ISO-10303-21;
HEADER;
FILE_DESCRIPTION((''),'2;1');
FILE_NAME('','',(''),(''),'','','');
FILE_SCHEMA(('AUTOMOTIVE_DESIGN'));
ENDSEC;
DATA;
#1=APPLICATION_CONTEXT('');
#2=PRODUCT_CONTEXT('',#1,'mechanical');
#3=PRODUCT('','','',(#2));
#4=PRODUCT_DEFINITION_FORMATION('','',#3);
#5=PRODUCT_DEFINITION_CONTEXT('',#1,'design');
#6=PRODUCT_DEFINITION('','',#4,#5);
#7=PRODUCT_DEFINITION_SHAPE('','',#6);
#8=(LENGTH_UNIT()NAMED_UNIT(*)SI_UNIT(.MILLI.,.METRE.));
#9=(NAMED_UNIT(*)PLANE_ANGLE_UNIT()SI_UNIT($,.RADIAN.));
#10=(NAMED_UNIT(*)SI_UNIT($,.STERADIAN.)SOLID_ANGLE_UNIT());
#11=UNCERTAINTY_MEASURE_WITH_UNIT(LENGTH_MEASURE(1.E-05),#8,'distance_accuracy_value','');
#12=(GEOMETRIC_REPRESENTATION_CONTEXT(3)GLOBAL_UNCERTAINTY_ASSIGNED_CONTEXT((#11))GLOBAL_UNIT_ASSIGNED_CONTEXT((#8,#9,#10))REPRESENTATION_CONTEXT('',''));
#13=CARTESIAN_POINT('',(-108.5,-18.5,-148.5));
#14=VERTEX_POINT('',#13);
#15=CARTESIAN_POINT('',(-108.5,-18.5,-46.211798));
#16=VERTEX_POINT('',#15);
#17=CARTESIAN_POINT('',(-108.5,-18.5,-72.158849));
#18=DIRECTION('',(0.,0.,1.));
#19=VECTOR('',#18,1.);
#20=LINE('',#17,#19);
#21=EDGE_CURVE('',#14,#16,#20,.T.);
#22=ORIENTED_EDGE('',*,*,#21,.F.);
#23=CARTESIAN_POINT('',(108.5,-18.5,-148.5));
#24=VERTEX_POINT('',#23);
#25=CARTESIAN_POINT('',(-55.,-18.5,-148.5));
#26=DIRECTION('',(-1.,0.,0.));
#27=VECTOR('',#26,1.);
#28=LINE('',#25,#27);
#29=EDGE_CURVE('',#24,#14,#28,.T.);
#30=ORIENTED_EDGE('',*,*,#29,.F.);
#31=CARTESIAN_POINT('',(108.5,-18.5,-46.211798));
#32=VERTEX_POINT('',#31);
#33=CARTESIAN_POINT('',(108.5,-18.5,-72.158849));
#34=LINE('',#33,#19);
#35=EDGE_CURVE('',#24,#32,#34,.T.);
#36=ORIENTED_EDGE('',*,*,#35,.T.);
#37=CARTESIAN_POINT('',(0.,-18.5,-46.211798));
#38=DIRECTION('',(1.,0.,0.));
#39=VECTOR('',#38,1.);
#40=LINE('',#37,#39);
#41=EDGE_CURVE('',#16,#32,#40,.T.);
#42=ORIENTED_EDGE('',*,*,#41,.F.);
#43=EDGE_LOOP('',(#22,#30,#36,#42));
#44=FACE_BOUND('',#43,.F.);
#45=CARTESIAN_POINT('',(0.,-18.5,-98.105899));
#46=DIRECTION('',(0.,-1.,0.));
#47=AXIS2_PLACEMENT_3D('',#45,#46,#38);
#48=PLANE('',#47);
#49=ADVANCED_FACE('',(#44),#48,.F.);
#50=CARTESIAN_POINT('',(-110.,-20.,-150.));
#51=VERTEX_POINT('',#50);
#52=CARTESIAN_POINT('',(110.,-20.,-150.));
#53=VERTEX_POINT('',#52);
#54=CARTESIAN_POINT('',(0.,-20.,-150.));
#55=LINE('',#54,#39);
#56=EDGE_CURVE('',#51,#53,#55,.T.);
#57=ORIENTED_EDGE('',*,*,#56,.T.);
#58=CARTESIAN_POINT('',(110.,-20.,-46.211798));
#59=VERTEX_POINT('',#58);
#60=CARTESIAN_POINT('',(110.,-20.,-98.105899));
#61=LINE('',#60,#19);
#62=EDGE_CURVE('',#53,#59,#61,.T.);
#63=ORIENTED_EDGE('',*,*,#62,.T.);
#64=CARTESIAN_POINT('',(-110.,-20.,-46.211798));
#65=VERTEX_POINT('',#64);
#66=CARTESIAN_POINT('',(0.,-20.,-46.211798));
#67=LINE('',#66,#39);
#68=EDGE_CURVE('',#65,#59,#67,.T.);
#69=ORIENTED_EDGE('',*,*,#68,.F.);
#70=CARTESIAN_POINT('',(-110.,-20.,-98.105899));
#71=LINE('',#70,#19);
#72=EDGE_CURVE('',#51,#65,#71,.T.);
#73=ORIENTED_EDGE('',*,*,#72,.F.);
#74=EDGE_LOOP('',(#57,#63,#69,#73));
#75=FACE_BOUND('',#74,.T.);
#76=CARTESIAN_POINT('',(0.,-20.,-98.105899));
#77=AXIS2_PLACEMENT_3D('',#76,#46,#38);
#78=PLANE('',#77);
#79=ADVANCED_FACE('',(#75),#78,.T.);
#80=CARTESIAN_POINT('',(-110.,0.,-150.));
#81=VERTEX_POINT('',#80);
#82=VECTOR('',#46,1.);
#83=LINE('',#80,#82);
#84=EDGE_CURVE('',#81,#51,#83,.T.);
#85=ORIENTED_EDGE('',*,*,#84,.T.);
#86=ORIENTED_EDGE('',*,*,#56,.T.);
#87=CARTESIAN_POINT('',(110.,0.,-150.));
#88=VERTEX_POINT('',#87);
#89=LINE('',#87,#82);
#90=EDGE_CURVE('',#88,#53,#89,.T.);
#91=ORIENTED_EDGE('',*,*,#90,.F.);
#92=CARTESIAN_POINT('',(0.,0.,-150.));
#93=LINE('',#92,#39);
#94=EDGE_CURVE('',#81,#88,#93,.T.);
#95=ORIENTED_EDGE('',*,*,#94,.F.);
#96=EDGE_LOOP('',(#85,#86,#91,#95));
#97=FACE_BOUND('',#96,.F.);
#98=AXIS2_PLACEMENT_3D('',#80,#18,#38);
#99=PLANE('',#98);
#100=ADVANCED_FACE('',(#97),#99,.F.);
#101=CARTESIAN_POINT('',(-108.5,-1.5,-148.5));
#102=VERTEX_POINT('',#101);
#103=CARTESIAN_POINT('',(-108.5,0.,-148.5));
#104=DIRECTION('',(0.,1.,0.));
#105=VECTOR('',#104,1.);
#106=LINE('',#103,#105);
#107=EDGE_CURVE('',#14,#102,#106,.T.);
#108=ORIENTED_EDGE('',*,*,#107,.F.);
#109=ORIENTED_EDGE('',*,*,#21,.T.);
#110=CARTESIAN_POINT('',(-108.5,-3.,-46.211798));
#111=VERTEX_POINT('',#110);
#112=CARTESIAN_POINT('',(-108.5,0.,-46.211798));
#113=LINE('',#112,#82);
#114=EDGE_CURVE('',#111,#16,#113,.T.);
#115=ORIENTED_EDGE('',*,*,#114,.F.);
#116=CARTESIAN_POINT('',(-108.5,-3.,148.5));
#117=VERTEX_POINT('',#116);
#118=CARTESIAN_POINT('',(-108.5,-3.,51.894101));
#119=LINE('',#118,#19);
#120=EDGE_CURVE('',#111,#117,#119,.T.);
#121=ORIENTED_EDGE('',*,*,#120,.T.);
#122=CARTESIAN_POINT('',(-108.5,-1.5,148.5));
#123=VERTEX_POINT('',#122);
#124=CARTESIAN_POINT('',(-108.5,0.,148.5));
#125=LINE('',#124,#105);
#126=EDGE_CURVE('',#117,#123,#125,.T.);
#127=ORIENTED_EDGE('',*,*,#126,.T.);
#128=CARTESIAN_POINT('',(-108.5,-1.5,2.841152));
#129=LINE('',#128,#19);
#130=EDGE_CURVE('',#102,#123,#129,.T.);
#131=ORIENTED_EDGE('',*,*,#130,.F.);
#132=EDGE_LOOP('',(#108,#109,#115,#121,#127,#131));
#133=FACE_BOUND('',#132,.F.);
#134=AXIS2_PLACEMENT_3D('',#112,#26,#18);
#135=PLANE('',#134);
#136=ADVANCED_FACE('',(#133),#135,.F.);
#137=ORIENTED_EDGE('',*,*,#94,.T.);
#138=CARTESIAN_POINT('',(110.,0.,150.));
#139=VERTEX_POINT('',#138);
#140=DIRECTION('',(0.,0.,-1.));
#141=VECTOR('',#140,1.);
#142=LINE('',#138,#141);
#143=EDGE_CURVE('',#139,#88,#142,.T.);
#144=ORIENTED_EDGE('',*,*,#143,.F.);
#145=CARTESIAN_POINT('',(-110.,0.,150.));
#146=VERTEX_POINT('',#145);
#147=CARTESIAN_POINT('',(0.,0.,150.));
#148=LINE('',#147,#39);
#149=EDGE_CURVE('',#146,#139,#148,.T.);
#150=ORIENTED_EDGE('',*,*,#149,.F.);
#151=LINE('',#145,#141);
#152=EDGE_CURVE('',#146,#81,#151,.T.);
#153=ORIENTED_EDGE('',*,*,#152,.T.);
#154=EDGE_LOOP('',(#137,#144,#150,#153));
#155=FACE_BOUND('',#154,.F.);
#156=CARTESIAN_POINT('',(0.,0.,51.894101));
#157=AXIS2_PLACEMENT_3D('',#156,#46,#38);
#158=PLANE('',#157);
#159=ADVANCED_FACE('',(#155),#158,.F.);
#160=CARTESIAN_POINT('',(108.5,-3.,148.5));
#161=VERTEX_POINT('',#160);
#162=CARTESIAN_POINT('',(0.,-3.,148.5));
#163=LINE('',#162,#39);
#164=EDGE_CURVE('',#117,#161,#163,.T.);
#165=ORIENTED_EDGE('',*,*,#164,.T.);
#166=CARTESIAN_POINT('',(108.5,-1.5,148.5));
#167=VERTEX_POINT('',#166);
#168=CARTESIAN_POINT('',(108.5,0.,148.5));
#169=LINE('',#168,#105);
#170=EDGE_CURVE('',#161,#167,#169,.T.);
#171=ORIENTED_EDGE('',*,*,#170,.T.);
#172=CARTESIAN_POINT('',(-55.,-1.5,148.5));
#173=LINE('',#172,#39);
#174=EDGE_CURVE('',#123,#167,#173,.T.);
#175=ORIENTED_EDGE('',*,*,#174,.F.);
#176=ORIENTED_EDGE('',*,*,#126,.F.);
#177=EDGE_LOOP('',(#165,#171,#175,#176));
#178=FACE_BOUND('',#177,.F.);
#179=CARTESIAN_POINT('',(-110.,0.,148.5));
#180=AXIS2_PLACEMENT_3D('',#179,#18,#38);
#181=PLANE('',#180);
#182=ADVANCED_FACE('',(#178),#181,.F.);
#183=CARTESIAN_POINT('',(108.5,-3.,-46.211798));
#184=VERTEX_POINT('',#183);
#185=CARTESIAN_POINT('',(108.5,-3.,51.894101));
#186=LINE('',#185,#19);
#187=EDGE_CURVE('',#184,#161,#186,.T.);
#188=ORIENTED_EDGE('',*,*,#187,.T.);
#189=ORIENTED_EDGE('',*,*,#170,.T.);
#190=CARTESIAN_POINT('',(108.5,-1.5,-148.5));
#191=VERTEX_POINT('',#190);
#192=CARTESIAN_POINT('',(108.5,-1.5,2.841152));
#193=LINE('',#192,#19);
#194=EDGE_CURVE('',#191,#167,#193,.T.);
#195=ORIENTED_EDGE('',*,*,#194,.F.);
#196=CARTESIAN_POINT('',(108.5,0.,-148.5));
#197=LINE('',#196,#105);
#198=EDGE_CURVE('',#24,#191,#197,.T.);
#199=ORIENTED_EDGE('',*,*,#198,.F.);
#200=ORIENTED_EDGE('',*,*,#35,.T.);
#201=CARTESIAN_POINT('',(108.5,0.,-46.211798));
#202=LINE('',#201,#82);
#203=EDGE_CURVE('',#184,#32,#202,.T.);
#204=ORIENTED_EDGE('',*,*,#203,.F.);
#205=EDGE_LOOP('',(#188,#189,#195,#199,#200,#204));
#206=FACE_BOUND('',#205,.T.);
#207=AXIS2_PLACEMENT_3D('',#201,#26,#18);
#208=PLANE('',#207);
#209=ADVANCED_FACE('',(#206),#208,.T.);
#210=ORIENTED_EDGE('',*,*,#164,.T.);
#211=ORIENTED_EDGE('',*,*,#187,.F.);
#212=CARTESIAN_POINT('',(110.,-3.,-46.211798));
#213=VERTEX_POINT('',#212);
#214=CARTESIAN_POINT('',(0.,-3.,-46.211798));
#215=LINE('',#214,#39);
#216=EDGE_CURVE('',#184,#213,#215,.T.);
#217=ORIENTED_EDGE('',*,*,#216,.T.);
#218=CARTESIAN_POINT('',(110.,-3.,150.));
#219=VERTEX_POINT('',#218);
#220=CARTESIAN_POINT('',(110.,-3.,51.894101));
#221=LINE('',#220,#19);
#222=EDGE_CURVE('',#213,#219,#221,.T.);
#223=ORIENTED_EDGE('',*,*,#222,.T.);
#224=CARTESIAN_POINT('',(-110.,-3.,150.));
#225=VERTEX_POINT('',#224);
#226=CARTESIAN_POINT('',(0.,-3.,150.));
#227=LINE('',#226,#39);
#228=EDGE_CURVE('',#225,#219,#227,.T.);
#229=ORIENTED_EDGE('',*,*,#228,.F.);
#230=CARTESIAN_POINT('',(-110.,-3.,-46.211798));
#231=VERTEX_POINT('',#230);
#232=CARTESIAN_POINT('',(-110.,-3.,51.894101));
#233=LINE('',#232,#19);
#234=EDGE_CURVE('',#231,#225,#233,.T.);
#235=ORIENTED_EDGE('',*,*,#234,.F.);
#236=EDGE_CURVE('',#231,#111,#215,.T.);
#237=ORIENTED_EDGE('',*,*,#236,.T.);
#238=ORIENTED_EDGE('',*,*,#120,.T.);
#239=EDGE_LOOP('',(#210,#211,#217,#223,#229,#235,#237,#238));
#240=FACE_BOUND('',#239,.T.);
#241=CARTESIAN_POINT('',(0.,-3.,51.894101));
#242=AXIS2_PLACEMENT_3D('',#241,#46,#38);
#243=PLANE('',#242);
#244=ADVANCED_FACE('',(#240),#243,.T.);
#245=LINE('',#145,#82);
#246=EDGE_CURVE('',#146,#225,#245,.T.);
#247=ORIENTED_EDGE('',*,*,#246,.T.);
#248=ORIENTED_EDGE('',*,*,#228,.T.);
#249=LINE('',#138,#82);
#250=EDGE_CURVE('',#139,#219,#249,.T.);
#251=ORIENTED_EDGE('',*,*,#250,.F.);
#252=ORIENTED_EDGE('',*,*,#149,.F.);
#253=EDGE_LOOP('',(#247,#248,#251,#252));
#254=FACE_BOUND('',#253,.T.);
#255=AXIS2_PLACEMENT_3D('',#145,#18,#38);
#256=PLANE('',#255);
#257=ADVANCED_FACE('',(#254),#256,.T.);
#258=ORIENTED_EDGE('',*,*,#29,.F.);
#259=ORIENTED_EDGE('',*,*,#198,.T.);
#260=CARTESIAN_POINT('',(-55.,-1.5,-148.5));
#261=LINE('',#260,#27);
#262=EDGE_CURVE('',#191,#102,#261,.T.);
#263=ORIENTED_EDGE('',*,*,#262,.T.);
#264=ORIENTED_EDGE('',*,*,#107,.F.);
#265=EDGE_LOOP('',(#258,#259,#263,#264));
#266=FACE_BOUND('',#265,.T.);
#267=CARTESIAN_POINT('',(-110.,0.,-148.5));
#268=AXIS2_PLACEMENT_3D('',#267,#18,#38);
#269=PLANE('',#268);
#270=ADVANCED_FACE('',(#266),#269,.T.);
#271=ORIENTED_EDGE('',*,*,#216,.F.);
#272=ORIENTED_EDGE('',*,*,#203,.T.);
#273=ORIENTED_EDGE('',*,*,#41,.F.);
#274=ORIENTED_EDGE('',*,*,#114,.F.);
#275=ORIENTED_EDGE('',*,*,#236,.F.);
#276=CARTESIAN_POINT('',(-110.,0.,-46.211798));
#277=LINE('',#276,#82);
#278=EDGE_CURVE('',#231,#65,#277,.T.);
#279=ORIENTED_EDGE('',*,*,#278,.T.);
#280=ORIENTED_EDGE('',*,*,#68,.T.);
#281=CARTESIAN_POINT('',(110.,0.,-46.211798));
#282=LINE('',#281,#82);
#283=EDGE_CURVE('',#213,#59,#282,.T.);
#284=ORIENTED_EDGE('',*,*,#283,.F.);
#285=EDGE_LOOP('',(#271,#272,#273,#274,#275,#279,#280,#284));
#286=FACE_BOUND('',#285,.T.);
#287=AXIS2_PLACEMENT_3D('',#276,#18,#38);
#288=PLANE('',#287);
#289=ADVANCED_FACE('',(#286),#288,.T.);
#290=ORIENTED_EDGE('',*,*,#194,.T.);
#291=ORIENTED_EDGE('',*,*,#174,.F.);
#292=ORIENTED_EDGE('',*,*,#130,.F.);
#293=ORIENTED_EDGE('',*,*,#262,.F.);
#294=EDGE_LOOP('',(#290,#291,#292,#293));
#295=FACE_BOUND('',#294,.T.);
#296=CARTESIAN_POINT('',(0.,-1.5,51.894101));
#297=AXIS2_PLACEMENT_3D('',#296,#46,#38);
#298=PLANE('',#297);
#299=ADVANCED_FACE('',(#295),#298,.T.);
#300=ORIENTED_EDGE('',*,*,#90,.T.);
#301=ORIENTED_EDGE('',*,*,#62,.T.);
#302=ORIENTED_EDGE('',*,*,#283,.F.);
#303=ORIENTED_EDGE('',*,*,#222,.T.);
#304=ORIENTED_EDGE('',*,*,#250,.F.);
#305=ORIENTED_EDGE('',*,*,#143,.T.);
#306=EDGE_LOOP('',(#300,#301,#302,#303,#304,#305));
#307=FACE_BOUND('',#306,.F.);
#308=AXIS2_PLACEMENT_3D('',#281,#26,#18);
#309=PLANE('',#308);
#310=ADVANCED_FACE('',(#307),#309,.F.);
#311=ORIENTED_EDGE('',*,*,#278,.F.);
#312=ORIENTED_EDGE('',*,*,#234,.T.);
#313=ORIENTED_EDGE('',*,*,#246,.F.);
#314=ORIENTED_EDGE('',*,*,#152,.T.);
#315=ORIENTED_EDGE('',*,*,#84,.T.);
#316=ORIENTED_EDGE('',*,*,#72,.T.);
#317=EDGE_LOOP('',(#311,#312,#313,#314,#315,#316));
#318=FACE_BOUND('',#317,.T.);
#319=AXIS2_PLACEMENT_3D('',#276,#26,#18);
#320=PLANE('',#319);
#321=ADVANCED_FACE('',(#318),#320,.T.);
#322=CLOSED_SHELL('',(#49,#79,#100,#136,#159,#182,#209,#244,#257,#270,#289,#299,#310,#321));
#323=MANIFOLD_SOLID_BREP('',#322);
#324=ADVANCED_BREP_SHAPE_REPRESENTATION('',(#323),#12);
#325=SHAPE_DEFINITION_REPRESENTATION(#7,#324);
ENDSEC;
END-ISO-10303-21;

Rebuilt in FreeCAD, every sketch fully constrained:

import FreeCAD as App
import Part
import Sketcher
from FreeCAD import Vector


def faces_at(feature, points):
    """Names of the faces that lie closest to the given points."""
    faces = feature.Shape.Faces
    near = lambda p: min(range(len(faces)), key=lambda i: faces[i].distToShape(Part.Vertex(*p))[0])
    return sorted({f"Face{near(p) + 1}" for p in points})


def add_polygon(sketch, points):
    """Adds a closed chain of lines whose ends are joined by coincident constraints."""
    first, n = sketch.GeometryCount, len(points)
    for a, b in zip(points, points[1:] + points[:1]):
        sketch.addGeometry(Part.LineSegment(App.Vector(*a, 0), App.Vector(*b, 0)), False)
    for i in range(n):
        sketch.addConstraint(Sketcher.Constraint("Coincident", first + i, 2, first + (i + 1) % n, 1))

doc = App.newDocument("Part")
params = doc.addObject("Spreadsheet::Sheet", "Params")
for row, (alias, value) in enumerate([
    ("sketch1_width", "220 mm"),
    ("pad1_length", "20 mm"),
    ("sketch2_width", "220 mm"),
    ("pad2_length", "3 mm"),
    ("thickness_wall", "1.5 mm"),
], start=1):
    params.set(f"A{row}", alias)
    params.set(f"B{row}", "=" + value)
    params.setAlias(f"B{row}", alias)

body = doc.addObject("PartDesign::Body", "Body")

sketch1 = doc.addObject("Sketcher::SketchObject", "Sketch")
body.addObject(sketch1)
sketch1.AttachmentSupport = (doc.XZ_Plane, [""])
sketch1.MapMode = "FlatFace"
add_polygon(sketch1, [(-110, -46.211798), (-110, -150), (110, -150), (110, -46.211798)])
sketch1.addConstraint([
    Sketcher.Constraint("Vertical", 0),
    Sketcher.Constraint("Horizontal", 1),
    Sketcher.Constraint("Vertical", 2),
    Sketcher.Constraint("Horizontal", 3),
    Sketcher.Constraint("DistanceX", 1, 1, 1, 2, 220.0),
    Sketcher.Constraint("DistanceX", 0, 2, -1, 1, 110.0),
    Sketcher.Constraint("DistanceY", 0, 2, -1, 1, 150.0),
    Sketcher.Constraint("DistanceY", 0, 2, 0, 1, 103.788202),
])
sketch1.setExpression("Constraints[8]", "Params.sketch1_width")
pad1 = doc.addObject("PartDesign::Pad", "Pad")
body.addObject(pad1)
pad1.Profile = sketch1
pad1.setExpression("Length", "Params.pad1_length")

sketch2 = doc.addObject("Sketcher::SketchObject", "Sketch001")
body.addObject(sketch2)
sketch2.AttachmentSupport = (doc.XZ_Plane, [""])
sketch2.MapMode = "FlatFace"
add_polygon(sketch2, [(-110, 150), (-110, -46.211798), (110, -46.211798), (110, 150)])
sketch2.addConstraint([
    Sketcher.Constraint("Vertical", 0),
    Sketcher.Constraint("Horizontal", 1),
    Sketcher.Constraint("Vertical", 2),
    Sketcher.Constraint("Horizontal", 3),
    Sketcher.Constraint("DistanceX", 1, 1, 1, 2, 220.0),
    Sketcher.Constraint("DistanceX", 0, 2, -1, 1, 110.0),
    Sketcher.Constraint("DistanceY", -1, 1, 2, 2, 150.0),
    Sketcher.Constraint("DistanceY", 0, 2, -1, 1, 46.211798),
])
sketch2.setExpression("Constraints[8]", "Params.sketch2_width")
pad2 = doc.addObject("PartDesign::Pad", "Pad001")
body.addObject(pad2)
pad2.Profile = sketch2
pad2.setExpression("Length", "Params.pad2_length")
doc.recompute()

thickness = doc.addObject("PartDesign::Thickness", "Thickness")
body.addObject(thickness)
thickness.Base = (pad2, faces_at(pad2, [(0, -11.5, -46.212), (0, -3, 51.894)]))
thickness.setExpression("Value", "Params.thickness_wall")
thickness.Reversed = True
thickness.Join = "Arc"

doc.recompute()
